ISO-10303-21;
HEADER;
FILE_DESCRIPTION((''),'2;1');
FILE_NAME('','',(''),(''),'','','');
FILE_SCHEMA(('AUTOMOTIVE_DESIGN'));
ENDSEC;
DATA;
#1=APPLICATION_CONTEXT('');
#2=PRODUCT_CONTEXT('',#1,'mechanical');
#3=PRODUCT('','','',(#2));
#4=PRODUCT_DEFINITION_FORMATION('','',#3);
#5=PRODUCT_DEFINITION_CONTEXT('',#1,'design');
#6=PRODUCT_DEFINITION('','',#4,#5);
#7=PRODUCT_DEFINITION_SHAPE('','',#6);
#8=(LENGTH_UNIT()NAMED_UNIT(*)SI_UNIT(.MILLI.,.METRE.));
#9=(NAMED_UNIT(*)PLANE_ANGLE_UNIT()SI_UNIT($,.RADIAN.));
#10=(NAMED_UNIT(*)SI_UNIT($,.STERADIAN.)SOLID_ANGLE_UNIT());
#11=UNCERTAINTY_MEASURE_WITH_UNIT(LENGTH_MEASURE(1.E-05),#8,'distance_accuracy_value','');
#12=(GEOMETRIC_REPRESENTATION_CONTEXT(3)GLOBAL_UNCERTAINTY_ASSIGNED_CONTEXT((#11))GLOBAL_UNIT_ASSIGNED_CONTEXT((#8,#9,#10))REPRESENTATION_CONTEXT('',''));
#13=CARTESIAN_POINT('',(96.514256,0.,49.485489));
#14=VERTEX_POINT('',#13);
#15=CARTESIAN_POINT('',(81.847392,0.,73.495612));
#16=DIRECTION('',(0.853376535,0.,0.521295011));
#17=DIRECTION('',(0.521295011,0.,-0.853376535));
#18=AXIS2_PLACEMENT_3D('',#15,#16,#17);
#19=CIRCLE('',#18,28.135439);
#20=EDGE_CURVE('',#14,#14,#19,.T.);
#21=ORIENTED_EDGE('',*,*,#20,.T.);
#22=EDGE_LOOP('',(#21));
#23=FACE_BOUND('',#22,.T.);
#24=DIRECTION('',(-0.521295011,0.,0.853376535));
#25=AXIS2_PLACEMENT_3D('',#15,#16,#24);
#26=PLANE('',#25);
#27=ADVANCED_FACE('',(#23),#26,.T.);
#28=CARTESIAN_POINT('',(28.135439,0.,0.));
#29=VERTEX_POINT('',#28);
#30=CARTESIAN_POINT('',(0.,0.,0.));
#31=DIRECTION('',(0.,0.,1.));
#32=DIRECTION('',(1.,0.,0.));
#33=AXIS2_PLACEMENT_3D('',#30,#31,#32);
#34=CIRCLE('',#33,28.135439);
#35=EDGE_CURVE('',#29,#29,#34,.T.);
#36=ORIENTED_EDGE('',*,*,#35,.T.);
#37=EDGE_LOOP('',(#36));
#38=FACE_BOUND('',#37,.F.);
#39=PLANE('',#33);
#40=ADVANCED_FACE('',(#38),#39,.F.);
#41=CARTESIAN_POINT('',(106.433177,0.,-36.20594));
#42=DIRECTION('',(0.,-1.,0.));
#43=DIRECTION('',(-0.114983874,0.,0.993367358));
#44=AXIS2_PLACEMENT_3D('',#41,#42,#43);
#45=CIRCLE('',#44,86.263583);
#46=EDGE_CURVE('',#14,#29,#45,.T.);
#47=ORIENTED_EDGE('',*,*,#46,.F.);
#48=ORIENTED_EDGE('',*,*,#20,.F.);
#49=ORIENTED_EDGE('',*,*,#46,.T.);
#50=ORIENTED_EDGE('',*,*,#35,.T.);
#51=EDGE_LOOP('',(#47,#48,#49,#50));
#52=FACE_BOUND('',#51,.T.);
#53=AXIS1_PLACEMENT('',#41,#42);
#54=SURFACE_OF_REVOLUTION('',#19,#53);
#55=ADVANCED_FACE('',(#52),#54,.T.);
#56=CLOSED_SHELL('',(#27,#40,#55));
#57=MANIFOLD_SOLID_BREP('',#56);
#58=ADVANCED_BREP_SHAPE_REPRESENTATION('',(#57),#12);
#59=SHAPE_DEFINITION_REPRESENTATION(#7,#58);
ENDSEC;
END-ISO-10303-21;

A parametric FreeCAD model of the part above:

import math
import FreeCAD as App
import Part
import Sketcher
from FreeCAD import Vector
Q = App.Units.Quantity

doc = App.newDocument("Part")
body = doc.addObject("PartDesign::Body", "Body")

# Sketch on XY plane
sketch1 = doc.addObject("Sketcher::SketchObject", "Sketch")
body.addObject(sketch1)
sketch1.AttachmentSupport = (doc.XY_Plane, [""])
sketch1.MapMode = "FlatFace"
sketch1.addGeometry(Part.Circle(Vector(0, 0, 0), Vector(0, 0, 1), 28), False)
sketch1.addConstraint(Sketcher.Constraint("Coincident", 0, 3, -1, 1))
sketch1.addConstraint(Sketcher.Constraint("Diameter", 0, Q("56.270878 mm")))

# Sketch on XZ plane
sketch2 = doc.addObject("Sketcher::SketchObject", "Sketch001")
body.addObject(sketch2)
sketch2.AttachmentSupport = (doc.XZ_Plane, [""])
sketch2.MapMode = "FlatFace"
sketch2.addGeometry(Part.ArcOfCircle(Part.Circle(Vector(106, -36, 0), Vector(0, 0, 1), 112), math.radians(103), math.radians(161)), False)
sketch2.addConstraint(Sketcher.Constraint("Coincident", 0, 2, -1, 1))
sketch2.addConstraint(Sketcher.Constraint("Radius", 0, Q("112.422823 mm")))
sketch2.addConstraint(Sketcher.Constraint("DistanceY", 0, 3, -1, 1, Q("36.20594 mm")))
sketch2.addConstraint(Sketcher.Constraint("DistanceY", -1, 1, 0, 1, Q("73.495612 mm")))
doc.recompute()

additivepipe = doc.addObject("PartDesign::AdditivePipe", "AdditivePipe")
body.addObject(additivepipe)
additivepipe.Profile = sketch1
additivepipe.Spine = (sketch2, ["Edge1"])

doc.recompute()
